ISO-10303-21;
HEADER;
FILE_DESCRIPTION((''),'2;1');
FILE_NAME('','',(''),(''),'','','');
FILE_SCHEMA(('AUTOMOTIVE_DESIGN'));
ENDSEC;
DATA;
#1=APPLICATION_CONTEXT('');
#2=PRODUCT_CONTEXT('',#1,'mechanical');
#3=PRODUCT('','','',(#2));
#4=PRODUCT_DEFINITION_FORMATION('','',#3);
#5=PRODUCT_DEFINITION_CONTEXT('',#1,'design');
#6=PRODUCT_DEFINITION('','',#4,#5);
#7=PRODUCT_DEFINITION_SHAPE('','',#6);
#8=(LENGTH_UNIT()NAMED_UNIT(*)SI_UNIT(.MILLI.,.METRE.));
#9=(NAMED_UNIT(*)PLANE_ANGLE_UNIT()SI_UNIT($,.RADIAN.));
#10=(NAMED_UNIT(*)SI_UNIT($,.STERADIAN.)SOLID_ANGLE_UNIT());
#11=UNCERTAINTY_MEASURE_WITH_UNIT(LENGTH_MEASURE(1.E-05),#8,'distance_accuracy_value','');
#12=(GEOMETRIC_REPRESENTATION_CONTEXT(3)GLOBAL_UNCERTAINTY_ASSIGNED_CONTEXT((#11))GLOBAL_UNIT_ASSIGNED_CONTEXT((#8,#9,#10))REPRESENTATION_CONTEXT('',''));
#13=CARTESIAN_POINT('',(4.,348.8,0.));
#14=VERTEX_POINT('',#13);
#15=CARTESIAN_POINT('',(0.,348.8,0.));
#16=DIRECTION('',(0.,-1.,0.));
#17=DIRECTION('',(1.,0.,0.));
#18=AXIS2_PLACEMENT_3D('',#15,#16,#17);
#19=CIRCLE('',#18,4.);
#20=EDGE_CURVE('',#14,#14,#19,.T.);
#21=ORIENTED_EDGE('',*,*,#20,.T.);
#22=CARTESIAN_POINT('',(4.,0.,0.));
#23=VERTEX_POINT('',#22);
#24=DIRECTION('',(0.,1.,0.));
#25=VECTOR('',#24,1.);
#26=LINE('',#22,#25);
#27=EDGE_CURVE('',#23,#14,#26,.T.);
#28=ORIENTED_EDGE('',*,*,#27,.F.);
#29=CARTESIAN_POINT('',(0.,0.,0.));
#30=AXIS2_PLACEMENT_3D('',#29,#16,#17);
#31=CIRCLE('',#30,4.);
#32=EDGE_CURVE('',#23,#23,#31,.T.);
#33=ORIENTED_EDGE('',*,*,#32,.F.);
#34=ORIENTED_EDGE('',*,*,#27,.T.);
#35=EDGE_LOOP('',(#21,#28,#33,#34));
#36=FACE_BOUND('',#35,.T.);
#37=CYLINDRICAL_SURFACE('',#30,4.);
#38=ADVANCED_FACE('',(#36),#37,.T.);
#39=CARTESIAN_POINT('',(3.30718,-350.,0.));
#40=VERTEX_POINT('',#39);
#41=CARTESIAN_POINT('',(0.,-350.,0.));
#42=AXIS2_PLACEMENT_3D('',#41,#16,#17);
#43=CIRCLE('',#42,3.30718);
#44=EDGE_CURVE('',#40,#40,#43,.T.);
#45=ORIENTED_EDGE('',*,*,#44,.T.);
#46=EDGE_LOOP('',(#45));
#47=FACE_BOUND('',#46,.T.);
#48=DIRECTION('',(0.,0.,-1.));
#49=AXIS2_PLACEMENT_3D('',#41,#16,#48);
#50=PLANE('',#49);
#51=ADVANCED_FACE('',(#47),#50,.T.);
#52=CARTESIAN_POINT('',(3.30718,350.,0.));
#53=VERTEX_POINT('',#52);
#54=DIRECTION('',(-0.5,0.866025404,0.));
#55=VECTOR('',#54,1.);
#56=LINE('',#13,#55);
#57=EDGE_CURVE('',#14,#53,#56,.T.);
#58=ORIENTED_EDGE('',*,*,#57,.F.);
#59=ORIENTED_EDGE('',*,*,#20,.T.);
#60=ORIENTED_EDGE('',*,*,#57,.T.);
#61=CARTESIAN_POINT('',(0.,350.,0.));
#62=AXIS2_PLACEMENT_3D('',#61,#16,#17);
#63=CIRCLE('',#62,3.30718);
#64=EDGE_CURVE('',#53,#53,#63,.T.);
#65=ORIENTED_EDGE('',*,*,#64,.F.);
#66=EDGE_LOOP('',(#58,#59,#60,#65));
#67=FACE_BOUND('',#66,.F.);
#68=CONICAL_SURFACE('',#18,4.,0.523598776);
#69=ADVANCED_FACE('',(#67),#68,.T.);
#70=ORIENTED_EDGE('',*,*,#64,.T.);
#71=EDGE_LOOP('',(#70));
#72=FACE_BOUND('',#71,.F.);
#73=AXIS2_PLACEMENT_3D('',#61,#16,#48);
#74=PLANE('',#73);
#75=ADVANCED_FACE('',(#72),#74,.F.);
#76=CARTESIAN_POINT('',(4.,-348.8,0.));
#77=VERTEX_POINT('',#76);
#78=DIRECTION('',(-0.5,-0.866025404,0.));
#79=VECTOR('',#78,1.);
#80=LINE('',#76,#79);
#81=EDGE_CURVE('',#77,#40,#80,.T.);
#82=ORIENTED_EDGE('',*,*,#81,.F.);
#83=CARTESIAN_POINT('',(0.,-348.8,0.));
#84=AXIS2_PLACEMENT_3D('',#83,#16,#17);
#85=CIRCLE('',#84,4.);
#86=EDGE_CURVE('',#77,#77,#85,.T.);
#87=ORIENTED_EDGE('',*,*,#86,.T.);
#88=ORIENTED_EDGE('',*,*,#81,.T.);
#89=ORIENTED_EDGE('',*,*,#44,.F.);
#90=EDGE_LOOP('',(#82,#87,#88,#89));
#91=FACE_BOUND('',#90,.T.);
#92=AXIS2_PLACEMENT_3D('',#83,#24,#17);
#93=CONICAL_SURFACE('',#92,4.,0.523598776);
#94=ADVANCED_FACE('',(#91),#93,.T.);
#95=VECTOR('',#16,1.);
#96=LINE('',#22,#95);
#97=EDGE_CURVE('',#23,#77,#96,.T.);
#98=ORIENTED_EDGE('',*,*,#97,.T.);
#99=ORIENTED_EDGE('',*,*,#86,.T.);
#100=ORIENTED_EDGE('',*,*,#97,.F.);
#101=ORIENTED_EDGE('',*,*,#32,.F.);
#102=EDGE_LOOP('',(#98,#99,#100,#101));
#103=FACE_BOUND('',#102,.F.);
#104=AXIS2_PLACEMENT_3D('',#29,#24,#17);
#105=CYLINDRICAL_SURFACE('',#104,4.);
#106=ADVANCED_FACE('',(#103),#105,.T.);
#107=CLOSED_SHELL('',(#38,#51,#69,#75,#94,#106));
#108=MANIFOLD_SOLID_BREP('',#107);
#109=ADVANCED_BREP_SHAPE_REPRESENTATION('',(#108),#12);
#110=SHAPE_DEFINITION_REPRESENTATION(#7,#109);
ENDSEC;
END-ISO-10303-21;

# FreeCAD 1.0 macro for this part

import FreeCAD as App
import Part
import Sketcher

V = App.Vector


def edges_at(feature, points):
    """Names of the edges that pass closest to the given points."""
    edges = feature.Shape.Edges
    near = lambda p: min(range(len(edges)), key=lambda i: edges[i].distToShape(Part.Vertex(*p))[0])
    return sorted({f"Edge{near(p) + 1}" for p in points})

doc = App.newDocument("Part")
body = doc.addObject("PartDesign::Body", "Body")

# Sketch on XZ plane
sketch1 = doc.addObject("Sketcher::SketchObject", "Sketch")
body.addObject(sketch1)
sketch1.AttachmentSupport = (doc.XZ_Plane, [""])
sketch1.MapMode = "FlatFace"
sketch1.addGeometry(Part.Circle(V(0, 0, 0), V(0, 0, 1), 4), False)
sketch1.addConstraint(Sketcher.Constraint("Coincident", 0, 3, -1, 1))
sketch1.addConstraint(Sketcher.Constraint("Diameter", 0, 8.0))
pad1 = doc.addObject("PartDesign::Pad", "Pad")
body.addObject(pad1)
pad1.Profile = sketch1
pad1.Length = 700
pad1.Midplane = True
doc.recompute()

chamfer = doc.addObject("PartDesign::Chamfer", "Chamfer")
body.addObject(chamfer)
chamfer.Base = (pad1, edges_at(pad1, [(-4, -350, 0), (-4, 350, 0)]))
chamfer.ChamferType = "Distance and Angle"
chamfer.Size = 1.2
chamfer.Angle = 30

doc.recompute()
